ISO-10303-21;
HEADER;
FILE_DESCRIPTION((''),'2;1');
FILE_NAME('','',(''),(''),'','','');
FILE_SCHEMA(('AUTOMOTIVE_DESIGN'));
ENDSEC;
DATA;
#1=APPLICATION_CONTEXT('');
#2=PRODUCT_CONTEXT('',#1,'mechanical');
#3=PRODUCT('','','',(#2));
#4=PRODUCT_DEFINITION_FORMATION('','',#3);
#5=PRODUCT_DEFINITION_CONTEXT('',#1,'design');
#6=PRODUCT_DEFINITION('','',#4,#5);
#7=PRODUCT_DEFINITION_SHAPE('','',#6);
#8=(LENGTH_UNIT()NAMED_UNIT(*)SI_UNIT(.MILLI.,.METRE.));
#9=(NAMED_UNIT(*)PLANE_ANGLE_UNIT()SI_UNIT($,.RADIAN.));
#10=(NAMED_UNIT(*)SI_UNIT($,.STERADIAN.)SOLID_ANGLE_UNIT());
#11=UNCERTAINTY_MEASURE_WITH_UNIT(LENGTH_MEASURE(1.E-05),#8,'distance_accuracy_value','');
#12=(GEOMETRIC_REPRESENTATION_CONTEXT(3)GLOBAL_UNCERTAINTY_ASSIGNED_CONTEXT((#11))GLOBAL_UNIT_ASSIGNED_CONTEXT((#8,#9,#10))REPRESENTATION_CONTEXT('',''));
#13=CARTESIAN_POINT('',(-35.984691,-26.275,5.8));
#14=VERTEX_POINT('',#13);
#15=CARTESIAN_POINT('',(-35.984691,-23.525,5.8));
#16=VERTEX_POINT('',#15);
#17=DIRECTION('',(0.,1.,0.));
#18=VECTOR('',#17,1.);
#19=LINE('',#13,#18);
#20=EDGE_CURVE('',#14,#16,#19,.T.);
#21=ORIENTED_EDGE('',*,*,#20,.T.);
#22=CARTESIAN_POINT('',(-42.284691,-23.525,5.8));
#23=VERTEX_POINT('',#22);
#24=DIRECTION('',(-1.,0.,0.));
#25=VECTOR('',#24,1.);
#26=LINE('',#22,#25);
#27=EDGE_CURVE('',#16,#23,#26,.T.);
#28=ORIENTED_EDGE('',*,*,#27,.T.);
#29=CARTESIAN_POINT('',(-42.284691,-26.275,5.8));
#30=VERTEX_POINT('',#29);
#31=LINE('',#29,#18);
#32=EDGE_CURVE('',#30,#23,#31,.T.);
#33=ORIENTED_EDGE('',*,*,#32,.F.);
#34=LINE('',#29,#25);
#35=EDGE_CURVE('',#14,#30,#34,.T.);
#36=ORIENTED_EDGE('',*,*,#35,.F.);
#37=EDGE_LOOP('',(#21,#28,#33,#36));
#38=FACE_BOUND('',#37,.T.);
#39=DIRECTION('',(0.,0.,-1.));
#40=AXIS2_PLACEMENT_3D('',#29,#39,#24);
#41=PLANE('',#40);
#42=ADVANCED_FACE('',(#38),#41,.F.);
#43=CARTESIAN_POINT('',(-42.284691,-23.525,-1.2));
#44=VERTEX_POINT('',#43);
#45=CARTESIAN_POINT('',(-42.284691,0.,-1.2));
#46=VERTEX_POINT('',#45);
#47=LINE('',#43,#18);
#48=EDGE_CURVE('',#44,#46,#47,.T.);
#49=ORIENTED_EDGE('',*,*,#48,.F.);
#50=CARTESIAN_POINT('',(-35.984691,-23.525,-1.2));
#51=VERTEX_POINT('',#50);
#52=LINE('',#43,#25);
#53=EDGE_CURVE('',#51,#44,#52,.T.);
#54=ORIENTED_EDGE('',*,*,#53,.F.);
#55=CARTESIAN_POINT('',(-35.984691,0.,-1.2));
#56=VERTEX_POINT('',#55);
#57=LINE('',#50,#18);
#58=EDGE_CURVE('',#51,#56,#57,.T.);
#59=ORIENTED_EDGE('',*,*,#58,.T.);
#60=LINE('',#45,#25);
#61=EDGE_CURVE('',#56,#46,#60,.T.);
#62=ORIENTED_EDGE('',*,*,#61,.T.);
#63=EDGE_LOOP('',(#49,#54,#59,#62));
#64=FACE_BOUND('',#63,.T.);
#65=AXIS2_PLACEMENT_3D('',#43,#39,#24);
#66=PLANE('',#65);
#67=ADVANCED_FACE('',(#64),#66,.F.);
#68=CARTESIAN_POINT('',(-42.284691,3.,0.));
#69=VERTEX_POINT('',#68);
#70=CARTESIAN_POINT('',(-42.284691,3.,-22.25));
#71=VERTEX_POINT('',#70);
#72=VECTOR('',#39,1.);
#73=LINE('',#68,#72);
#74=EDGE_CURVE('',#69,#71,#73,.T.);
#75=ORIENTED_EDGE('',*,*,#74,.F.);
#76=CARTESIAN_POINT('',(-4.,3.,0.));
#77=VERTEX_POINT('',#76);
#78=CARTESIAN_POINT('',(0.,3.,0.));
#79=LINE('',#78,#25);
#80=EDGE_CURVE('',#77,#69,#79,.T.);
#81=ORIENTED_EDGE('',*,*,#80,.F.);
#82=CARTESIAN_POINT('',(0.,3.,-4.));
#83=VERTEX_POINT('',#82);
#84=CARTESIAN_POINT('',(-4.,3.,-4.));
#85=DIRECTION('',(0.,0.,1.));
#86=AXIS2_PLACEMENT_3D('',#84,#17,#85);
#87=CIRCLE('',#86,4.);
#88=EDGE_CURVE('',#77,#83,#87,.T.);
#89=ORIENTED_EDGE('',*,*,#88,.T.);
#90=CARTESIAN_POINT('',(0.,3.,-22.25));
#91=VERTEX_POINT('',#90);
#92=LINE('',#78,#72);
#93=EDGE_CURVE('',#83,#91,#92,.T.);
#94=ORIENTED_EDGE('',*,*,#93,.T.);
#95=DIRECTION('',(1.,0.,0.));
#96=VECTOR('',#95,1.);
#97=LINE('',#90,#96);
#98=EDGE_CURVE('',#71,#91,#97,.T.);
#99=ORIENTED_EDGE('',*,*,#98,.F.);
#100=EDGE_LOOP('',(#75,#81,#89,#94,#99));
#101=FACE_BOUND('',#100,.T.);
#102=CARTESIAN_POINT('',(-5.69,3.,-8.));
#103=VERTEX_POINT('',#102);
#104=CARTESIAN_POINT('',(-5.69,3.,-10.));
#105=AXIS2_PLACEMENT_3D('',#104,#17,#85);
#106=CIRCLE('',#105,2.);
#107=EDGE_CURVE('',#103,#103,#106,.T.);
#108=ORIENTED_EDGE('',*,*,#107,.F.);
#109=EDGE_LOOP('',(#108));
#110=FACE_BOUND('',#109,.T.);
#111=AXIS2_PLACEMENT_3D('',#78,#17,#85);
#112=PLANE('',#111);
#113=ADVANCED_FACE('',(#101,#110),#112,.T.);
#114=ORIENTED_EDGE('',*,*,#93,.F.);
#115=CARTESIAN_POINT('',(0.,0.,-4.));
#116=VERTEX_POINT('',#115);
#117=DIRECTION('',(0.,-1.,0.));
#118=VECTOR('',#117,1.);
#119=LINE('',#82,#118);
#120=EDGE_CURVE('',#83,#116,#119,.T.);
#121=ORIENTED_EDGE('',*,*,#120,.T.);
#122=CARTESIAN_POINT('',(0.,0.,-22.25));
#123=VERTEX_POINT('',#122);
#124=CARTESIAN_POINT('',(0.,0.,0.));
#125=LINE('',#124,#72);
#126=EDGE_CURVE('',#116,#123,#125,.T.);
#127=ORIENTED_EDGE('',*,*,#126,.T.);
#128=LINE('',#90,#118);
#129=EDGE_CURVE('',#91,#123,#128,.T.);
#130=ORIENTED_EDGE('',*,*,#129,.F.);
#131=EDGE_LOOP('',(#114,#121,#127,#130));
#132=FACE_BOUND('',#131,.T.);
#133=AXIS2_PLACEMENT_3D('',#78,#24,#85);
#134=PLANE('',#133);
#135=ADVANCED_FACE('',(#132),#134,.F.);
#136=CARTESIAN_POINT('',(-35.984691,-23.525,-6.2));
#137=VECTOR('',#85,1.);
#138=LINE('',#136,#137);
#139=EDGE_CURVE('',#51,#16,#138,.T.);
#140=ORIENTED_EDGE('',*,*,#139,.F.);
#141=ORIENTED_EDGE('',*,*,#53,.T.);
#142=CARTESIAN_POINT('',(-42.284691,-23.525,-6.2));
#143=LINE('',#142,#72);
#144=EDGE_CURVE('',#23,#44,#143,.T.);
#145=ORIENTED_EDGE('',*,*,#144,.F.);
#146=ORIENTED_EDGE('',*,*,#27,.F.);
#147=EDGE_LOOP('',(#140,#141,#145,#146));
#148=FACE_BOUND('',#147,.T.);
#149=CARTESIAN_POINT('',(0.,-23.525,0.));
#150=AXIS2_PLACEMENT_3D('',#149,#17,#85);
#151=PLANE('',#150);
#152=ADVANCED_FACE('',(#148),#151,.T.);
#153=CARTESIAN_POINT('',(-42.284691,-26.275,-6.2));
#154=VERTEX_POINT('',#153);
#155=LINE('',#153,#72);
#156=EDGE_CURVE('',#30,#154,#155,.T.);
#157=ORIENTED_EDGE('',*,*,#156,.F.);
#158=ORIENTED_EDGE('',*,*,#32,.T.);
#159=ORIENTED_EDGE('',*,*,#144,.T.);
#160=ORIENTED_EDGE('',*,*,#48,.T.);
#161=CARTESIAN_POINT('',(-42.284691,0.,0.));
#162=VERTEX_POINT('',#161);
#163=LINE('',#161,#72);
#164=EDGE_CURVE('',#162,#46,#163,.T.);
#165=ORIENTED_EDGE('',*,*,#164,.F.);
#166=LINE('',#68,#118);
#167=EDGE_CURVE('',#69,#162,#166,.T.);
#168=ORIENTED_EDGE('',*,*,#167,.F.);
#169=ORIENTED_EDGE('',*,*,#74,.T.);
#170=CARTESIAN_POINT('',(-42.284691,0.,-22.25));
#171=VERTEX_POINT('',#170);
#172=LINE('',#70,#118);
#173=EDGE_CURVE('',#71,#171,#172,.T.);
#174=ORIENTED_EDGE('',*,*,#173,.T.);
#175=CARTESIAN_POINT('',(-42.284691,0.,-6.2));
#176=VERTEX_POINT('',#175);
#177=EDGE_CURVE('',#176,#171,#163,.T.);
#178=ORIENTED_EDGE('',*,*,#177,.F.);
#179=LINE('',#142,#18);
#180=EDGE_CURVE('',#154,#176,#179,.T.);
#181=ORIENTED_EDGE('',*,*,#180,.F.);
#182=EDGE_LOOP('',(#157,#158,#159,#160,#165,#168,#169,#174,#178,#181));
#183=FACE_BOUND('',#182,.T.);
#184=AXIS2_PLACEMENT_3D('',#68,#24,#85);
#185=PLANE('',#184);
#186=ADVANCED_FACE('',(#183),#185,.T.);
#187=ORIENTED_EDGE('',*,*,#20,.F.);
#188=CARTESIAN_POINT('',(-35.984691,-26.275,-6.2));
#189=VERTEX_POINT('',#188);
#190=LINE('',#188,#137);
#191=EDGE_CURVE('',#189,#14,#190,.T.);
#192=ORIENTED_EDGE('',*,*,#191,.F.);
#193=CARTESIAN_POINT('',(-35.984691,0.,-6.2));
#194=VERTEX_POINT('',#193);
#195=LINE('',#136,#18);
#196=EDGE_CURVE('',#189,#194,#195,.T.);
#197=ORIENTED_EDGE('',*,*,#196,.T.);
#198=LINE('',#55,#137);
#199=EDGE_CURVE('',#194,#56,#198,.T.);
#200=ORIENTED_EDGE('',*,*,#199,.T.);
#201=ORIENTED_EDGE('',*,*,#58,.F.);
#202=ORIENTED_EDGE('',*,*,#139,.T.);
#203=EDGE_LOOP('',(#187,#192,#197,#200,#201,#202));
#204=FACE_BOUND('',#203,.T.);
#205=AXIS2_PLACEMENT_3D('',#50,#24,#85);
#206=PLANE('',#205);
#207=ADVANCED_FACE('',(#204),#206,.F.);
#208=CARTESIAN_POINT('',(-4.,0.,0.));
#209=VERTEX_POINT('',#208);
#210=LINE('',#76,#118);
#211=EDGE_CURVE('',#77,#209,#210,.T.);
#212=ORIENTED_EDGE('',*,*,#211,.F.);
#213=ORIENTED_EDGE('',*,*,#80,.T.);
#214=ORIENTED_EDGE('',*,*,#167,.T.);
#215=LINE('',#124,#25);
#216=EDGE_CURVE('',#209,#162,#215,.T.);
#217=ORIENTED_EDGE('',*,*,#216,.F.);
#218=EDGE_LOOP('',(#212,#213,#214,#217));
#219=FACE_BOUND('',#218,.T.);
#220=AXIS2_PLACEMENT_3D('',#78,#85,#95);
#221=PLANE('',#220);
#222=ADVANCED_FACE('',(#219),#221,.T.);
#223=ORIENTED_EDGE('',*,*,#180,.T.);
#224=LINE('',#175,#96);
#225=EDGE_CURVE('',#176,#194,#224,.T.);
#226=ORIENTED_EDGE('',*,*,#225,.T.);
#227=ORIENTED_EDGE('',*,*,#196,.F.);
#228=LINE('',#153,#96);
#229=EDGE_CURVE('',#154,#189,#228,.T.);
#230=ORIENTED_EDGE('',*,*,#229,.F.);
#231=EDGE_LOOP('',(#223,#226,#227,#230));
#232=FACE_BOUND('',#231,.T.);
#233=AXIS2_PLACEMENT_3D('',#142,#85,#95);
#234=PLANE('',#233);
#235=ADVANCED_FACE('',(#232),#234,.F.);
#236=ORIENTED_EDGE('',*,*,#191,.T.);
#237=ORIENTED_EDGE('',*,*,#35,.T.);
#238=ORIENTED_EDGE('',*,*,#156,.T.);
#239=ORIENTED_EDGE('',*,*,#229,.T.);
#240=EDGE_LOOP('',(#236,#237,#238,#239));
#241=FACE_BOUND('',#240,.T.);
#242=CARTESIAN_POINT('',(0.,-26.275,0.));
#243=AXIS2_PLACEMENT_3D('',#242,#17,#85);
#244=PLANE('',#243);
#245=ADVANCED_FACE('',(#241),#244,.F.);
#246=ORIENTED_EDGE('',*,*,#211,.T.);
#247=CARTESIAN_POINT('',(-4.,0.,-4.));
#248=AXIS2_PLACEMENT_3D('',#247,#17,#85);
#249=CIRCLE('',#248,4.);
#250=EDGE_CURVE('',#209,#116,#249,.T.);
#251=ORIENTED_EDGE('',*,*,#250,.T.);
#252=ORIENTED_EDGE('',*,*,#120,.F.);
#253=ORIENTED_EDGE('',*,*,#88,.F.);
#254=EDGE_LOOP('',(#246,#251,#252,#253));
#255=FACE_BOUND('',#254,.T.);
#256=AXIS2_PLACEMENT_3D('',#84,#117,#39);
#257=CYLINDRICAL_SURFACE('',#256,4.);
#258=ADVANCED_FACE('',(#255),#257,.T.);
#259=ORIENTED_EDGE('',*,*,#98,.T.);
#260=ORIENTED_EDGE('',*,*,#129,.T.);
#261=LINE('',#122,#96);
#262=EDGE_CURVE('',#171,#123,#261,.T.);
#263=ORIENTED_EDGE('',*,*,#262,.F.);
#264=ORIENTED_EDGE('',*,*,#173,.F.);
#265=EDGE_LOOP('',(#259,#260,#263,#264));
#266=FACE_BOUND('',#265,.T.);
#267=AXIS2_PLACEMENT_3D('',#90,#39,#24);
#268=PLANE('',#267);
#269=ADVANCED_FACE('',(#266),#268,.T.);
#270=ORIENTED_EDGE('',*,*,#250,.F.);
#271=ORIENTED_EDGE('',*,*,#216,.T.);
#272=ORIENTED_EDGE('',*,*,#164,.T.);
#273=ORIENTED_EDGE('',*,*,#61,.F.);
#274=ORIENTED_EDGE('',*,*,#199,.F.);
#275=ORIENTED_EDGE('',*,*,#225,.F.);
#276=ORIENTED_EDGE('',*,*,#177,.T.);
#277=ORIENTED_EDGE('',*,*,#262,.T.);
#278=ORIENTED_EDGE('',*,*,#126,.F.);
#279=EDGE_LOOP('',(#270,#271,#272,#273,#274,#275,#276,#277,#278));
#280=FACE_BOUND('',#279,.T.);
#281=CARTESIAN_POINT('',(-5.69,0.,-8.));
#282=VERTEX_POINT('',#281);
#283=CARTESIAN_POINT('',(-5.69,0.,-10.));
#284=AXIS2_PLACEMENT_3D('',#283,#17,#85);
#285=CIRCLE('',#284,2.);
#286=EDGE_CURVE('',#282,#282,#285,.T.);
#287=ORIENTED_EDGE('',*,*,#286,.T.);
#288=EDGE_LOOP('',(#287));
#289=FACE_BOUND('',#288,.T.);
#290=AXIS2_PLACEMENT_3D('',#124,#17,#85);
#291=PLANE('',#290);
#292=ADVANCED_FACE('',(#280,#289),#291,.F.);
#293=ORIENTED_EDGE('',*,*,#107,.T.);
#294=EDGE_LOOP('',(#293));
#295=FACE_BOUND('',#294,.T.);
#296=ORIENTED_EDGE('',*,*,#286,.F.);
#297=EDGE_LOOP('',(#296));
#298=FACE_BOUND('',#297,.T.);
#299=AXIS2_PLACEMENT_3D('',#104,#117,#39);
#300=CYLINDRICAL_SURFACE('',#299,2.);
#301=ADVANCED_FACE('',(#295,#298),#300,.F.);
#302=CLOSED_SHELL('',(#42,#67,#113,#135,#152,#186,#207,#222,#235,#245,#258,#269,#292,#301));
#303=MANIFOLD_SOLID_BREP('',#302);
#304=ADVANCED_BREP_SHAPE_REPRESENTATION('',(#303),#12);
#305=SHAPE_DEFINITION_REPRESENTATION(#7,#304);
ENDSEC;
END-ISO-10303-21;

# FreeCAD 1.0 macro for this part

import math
import FreeCAD as App
import Part
import Sketcher
from FreeCAD import Vector


def add_polygon(sketch, points):
    """Adds a closed chain of lines whose ends are joined by coincident constraints."""
    first, n = sketch.GeometryCount, len(points)
    for a, b in zip(points, points[1:] + points[:1]):
        sketch.addGeometry(Part.LineSegment(App.Vector(*a, 0), App.Vector(*b, 0)), False)
    for i in range(n):
        sketch.addConstraint(Sketcher.Constraint("Coincident", first + i, 2, first + (i + 1) % n, 1))

doc = App.newDocument("Part")
params = doc.addObject("Spreadsheet::Sheet", "Params")
for row, (alias, value) in enumerate([
    ("sketch1_diameter", "4 mm"),
    ("sketch1_radius", "4 mm"),
    ("sketch1_height", "18.25 mm"),
    ("pad1_length", "3 mm"),
    ("sketch2_height", "5 mm"),
    ("sketch2_width", "6.3 mm"),
    ("pad2_length", "23.525 mm"),
    ("sketch3_height", "12 mm"),
    ("sketch3_width", "6.3 mm"),
    ("pad3_length", "2.75 mm"),
], start=1):
    params.set(f"A{row}", alias)
    params.set(f"B{row}", "=" + value)
    params.setAlias(f"B{row}", alias)

body = doc.addObject("PartDesign::Body", "Body")

sketch1 = body.newObject("Sketcher::SketchObject", "Sketch")
sketch1.AttachmentSupport = (doc.getObject("XZ_Plane"), [""])
sketch1.MapMode = "FlatFace"
sketch1.addGeometry([
    Part.ArcOfCircle(Part.Circle(Vector(-4, -4, 0), Vector(0, 0, 1), 4), math.radians(0), math.radians(90)),
    Part.LineSegment(Vector(0, -4, 0), Vector(0, -22.25, 0)),
    Part.LineSegment(Vector(0, -22.25, 0), Vector(-42.284691, -22.25, 0)),
    Part.LineSegment(Vector(-42.284691, -22.25, 0), Vector(-42.284691, 0, 0)),
    Part.LineSegment(Vector(-42.284691, 0, 0), Vector(-4, 0, 0)),
    Part.Circle(Vector(-5.69, -10, 0), Vector(0, 0, 1), 2),
], False)
sketch1.addConstraint([
    Sketcher.Constraint("Tangent", 0, 1, 1, 1),
    Sketcher.Constraint("Coincident", 1, 2, 2, 1),
    Sketcher.Constraint("Coincident", 2, 2, 3, 1),
    Sketcher.Constraint("Coincident", 3, 2, 4, 1),
    Sketcher.Constraint("Tangent", 4, 2, 0, 2),
    Sketcher.Constraint("Vertical", 1),
    Sketcher.Constraint("Horizontal", 2),
    Sketcher.Constraint("Vertical", 3),
    Sketcher.Constraint("Horizontal", 4),
    Sketcher.Constraint("PointOnObject", 0, 1, -2),
    Sketcher.Constraint("PointOnObject", 3, 2, -1),
    Sketcher.Constraint("Diameter", 5, 4.0),
    Sketcher.Constraint("Radius", 0, 4.0),
    Sketcher.Constraint("DistanceY", 5, 3, -1, 1, 10.0),
    Sketcher.Constraint("DistanceY", 1, 2, 1, 1, 18.25),
    Sketcher.Constraint("DistanceX", 5, 3, -1, 1, 5.69),
    Sketcher.Constraint("DistanceX", 2, 2, 2, 1, 42.284691),
])
sketch1.setExpression("Constraints[11]", "Params.sketch1_diameter")
sketch1.setExpression("Constraints[12]", "Params.sketch1_radius")
sketch1.setExpression("Constraints[14]", "Params.sketch1_height")
pad1 = body.newObject("PartDesign::Pad", "Pad")
pad1.Profile = sketch1
pad1.setExpression("Length", "Params.pad1_length")
pad1.Reversed = True

sketch2 = body.newObject("Sketcher::SketchObject", "Sketch001")
sketch2.AttachmentSupport = (doc.getObject("XZ_Plane"), [""])
sketch2.MapMode = "FlatFace"
add_polygon(sketch2, [(-42.284691, -1.2), (-42.284691, -6.2), (-35.984691, -6.2), (-35.984691, -1.2)])
sketch2.addConstraint([
    Sketcher.Constraint("Vertical", 0),
    Sketcher.Constraint("Horizontal", 1),
    Sketcher.Constraint("Vertical", 2),
    Sketcher.Constraint("Horizontal", 3),
    Sketcher.Constraint("DistanceY", 0, 2, 0, 1, 5.0),
    Sketcher.Constraint("DistanceX", 1, 1, 1, 2, 6.3),
    Sketcher.Constraint("DistanceY", 0, 2, -1, 1, 6.2),
    Sketcher.Constraint("DistanceX", 0, 2, -1, 1, 42.284691),
])
sketch2.setExpression("Constraints[8]", "Params.sketch2_height")
sketch2.setExpression("Constraints[9]", "Params.sketch2_width")
pad2 = body.newObject("PartDesign::Pad", "Pad001")
pad2.Profile = sketch2
pad2.setExpression("Length", "Params.pad2_length")

sketch3 = body.newObject("Sketcher::SketchObject", "Sketch002")
sketch3.AttachmentSupport = (doc.getObject("XZ_Plane"), [""])
sketch3.MapMode = "FlatFace"
sketch3.AttachmentOffset = App.Placement(Vector(0, 0, 23.525), App.Rotation())
add_polygon(sketch3, [(-35.984691, -6.2), (-35.984691, 5.8), (-42.284691, 5.8), (-42.284691, -6.2)])
sketch3.addConstraint([
    Sketcher.Constraint("Vertical", 0),
    Sketcher.Constraint("Horizontal", 1),
    Sketcher.Constraint("Vertical", 2),
    Sketcher.Constraint("Horizontal", 3),
    Sketcher.Constraint("DistanceY", 0, 1, 0, 2, 12.0),
    Sketcher.Constraint("DistanceX", 1, 2, 1, 1, 6.3),
    Sketcher.Constraint("DistanceY", -1, 1, 0, 2, 5.8),
    Sketcher.Constraint("DistanceX", 0, 2, -1, 1, 35.984691),
])
sketch3.setExpression("Constraints[8]", "Params.sketch3_height")
sketch3.setExpression("Constraints[9]", "Params.sketch3_width")
pad3 = body.newObject("PartDesign::Pad", "Pad002")
pad3.Profile = sketch3
pad3.setExpression("Length", "Params.pad3_length")

doc.recompute()
